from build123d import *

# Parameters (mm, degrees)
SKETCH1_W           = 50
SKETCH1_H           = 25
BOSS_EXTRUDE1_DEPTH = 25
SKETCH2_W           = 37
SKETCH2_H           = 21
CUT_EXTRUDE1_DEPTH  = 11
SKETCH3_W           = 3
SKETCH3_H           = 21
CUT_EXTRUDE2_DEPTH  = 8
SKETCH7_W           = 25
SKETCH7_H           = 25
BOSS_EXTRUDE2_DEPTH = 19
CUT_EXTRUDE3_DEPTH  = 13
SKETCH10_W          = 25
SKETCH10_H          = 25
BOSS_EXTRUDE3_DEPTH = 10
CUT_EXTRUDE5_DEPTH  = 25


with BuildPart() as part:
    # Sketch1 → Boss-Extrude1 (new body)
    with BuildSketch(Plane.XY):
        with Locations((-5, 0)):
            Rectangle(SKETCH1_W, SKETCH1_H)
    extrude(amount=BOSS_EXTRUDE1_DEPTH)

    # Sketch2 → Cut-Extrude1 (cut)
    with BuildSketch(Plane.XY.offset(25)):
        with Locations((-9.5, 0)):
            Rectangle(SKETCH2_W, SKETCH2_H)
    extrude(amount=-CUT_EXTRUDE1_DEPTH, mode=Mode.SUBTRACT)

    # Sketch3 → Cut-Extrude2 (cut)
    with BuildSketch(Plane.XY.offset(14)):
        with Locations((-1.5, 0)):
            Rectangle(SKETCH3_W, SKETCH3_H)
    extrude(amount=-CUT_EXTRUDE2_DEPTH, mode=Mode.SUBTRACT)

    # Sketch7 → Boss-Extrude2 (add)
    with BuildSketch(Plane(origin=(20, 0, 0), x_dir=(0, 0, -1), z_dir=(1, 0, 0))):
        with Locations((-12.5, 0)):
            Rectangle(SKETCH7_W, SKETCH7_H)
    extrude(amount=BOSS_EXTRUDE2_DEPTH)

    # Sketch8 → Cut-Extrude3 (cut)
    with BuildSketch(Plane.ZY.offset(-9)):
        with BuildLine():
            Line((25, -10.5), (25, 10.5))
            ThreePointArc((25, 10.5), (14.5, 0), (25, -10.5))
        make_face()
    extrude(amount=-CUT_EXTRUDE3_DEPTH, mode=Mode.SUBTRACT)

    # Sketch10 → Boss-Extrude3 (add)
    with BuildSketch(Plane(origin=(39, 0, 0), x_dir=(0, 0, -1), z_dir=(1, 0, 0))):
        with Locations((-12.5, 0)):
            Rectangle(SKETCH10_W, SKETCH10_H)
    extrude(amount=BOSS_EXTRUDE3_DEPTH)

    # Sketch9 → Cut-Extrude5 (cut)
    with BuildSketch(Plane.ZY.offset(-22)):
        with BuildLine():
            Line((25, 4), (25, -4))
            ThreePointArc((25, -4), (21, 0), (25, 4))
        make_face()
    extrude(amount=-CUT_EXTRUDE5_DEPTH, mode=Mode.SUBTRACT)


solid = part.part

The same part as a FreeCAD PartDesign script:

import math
import FreeCAD as App
import Part
import Sketcher

V = App.Vector
Q = App.Units.Quantity

doc = App.newDocument("Part")
body = doc.addObject("PartDesign::Body", "Body")

# Sketch on XY plane
sketch1 = body.newObject("Sketcher::SketchObject", "Sketch")
sketch1.AttachmentSupport = (doc.getObject("XY_Plane"), [""])
sketch1.MapMode = "FlatFace"
sketch1.addGeometry([
    Part.LineSegment(V(-30, 12, 0), V(-30, -12, 0)),
    Part.LineSegment(V(-30, -12, 0), V(20, -12, 0)),
    Part.LineSegment(V(20, -12, 0), V(20, 12, 0)),
    Part.LineSegment(V(20, 12, 0), V(-30, 12, 0)),
], False)
sketch1.addConstraint([
    Sketcher.Constraint("Coincident", 0, 2, 1, 1),
    Sketcher.Constraint("Coincident", 1, 2, 2, 1),
    Sketcher.Constraint("Coincident", 2, 2, 3, 1),
    Sketcher.Constraint("Coincident", 3, 2, 0, 1),
    Sketcher.Constraint("Vertical", 0),
    Sketcher.Constraint("Horizontal", 1),
    Sketcher.Constraint("Vertical", 2),
    Sketcher.Constraint("Horizontal", 3),
    Sketcher.Constraint("DistanceX", 1, 1, 1, 2, Q("50 mm")),
    Sketcher.Constraint("DistanceY", 0, 2, 0, 1, Q("25 mm")),
    Sketcher.Constraint("DistanceX", 0, 2, -1, 1, Q("30 mm")),
    Sketcher.Constraint("DistanceY", 0, 2, -1, 1, Q("12.5 mm")),
])
pad1 = body.newObject("PartDesign::Pad", "Pad")
pad1.Profile = sketch1
pad1.Length = 25

# Sketch on XY plane
sketch2 = body.newObject("Sketcher::SketchObject", "Sketch001")
sketch2.AttachmentSupport = (doc.getObject("XY_Plane"), [""])
sketch2.MapMode = "FlatFace"
sketch2.AttachmentOffset = App.Placement(V(0, 0, 25), App.Rotation())
sketch2.addGeometry([
    Part.LineSegment(V(-28, 10, 0), V(-28, -10, 0)),
    Part.LineSegment(V(-28, -10, 0), V(9, -10, 0)),
    Part.LineSegment(V(9, -10, 0), V(9, 10, 0)),
    Part.LineSegment(V(9, 10, 0), V(-28, 10, 0)),
], False)
sketch2.addConstraint([
    Sketcher.Constraint("Coincident", 0, 2, 1, 1),
    Sketcher.Constraint("Coincident", 1, 2, 2, 1),
    Sketcher.Constraint("Coincident", 2, 2, 3, 1),
    Sketcher.Constraint("Coincident", 3, 2, 0, 1),
    Sketcher.Constraint("Vertical", 0),
    Sketcher.Constraint("Horizontal", 1),
    Sketcher.Constraint("Vertical", 2),
    Sketcher.Constraint("Horizontal", 3),
    Sketcher.Constraint("DistanceX", 1, 1, 1, 2, Q("37 mm")),
    Sketcher.Constraint("DistanceY", 0, 2, 0, 1, Q("21 mm")),
    Sketcher.Constraint("DistanceX", 0, 2, -1, 1, Q("28 mm")),
    Sketcher.Constraint("DistanceY", 0, 2, -1, 1, Q("10.5 mm")),
])
pocket1 = body.newObject("PartDesign::Pocket", "Pocket")
pocket1.Profile = sketch2
pocket1.Length = 11

# Sketch on XY plane
sketch3 = body.newObject("Sketcher::SketchObject", "Sketch002")
sketch3.AttachmentSupport = (doc.getObject("XY_Plane"), [""])
sketch3.MapMode = "FlatFace"
sketch3.AttachmentOffset = App.Placement(V(0, 0, 14), App.Rotation())
sketch3.addGeometry([
    Part.LineSegment(V(-3, 10.5, 0), V(-3, -10.5, 0)),
    Part.LineSegment(V(-3, -10.5, 0), V(0, -10.5, 0)),
    Part.LineSegment(V(0, -10.5, 0), V(0, 10.5, 0)),
    Part.LineSegment(V(0, 10.5, 0), V(-3, 10.5, 0)),
], False)
sketch3.addConstraint([
    Sketcher.Constraint("Coincident", 0, 2, 1, 1),
    Sketcher.Constraint("Coincident", 1, 2, 2, 1),
    Sketcher.Constraint("Coincident", 2, 2, 3, 1),
    Sketcher.Constraint("Coincident", 3, 2, 0, 1),
    Sketcher.Constraint("Vertical", 0),
    Sketcher.Constraint("Horizontal", 1),
    Sketcher.Constraint("Vertical", 2),
    Sketcher.Constraint("Horizontal", 3),
    Sketcher.Constraint("Symmetric", 1, 2, 2, 2, -1, 1),
    Sketcher.Constraint("DistanceX", 1, 1, 1, 2, Q("3 mm")),
    Sketcher.Constraint("DistanceY", 0, 2, 0, 1, Q("21 mm")),
])
pocket2 = body.newObject("PartDesign::Pocket", "Pocket001")
pocket2.Profile = sketch3
pocket2.Length = 8

# Sketch on YZ plane
sketch4 = body.newObject("Sketcher::SketchObject", "Sketch003")
sketch4.AttachmentSupport = (doc.getObject("YZ_Plane"), [""])
sketch4.MapMode = "FlatFace"
sketch4.AttachmentOffset = App.Placement(V(0, 0, 20), App.Rotation())
sketch4.addGeometry([
    Part.LineSegment(V(12, 25, 0), V(-12, 25, 0)),
    Part.LineSegment(V(-12, 25, 0), V(-12, 0, 0)),
    Part.LineSegment(V(-12, 0, 0), V(12, 0, 0)),
    Part.LineSegment(V(12, 0, 0), V(12, 25, 0)),
], False)
sketch4.addConstraint([
    Sketcher.Constraint("Coincident", 0, 2, 1, 1),
    Sketcher.Constraint("Coincident", 1, 2, 2, 1),
    Sketcher.Constraint("Coincident", 2, 2, 3, 1),
    Sketcher.Constraint("Coincident", 3, 2, 0, 1),
    Sketcher.Constraint("Horizontal", 0),
    Sketcher.Constraint("Vertical", 1),
    Sketcher.Constraint("Horizontal", 2),
    Sketcher.Constraint("Vertical", 3),
    Sketcher.Constraint("Symmetric", 1, 2, 2, 2, -1, 1),
    Sketcher.Constraint("Equal", 2, 1),
    Sketcher.Constraint("DistanceX", 0, 2, 0, 1, Q("25 mm")),
])
pad2 = body.newObject("PartDesign::Pad", "Pad001")
pad2.Profile = sketch4
pad2.Length = 19

# Sketch on YZ plane
sketch5 = body.newObject("Sketcher::SketchObject", "Sketch004")
sketch5.AttachmentSupport = (doc.getObject("YZ_Plane"), [""])
sketch5.MapMode = "FlatFace"
sketch5.AttachmentOffset = App.Placement(V(0, 0, 9), App.Rotation())
sketch5.addGeometry([
    Part.LineSegment(V(-10, 25, 0), V(10, 25, 0)),
    Part.ArcOfCircle(Part.Circle(V(0, 25, 0), V(0, 0, 1), 10), math.radians(180), math.radians(360)),
], False)
sketch5.addConstraint([
    Sketcher.Constraint("Coincident", 0, 1, 1, 1),
    Sketcher.Constraint("Coincident", 1, 2, 0, 2),
    Sketcher.Constraint("Horizontal", 0),
    Sketcher.Constraint("PointOnObject", 1, 3, -2),
    Sketcher.Constraint("Horizontal", 1, 3, 0, 1),
    Sketcher.Constraint("Radius", 1, Q("10.5 mm")),
    Sketcher.Constraint("DistanceY", -1, 1, 1, 3, Q("25 mm")),
])
pocket3 = body.newObject("PartDesign::Pocket", "Pocket002")
pocket3.Profile = sketch5
pocket3.Length = 13
pocket3.Reversed = True

# Sketch on YZ plane
sketch6 = body.newObject("Sketcher::SketchObject", "Sketch005")
sketch6.AttachmentSupport = (doc.getObject("YZ_Plane"), [""])
sketch6.MapMode = "FlatFace"
sketch6.AttachmentOffset = App.Placement(V(0, 0, 39), App.Rotation())
sketch6.addGeometry([
    Part.LineSegment(V(12, 25, 0), V(-12, 25, 0)),
    Part.LineSegment(V(-12, 25, 0), V(-12, 0, 0)),
    Part.LineSegment(V(-12, 0, 0), V(12, 0, 0)),
    Part.LineSegment(V(12, 0, 0), V(12, 25, 0)),
], False)
sketch6.addConstraint([
    Sketcher.Constraint("Coincident", 0, 2, 1, 1),
    Sketcher.Constraint("Coincident", 1, 2, 2, 1),
    Sketcher.Constraint("Coincident", 2, 2, 3, 1),
    Sketcher.Constraint("Coincident", 3, 2, 0, 1),
    Sketcher.Constraint("Horizontal", 0),
    Sketcher.Constraint("Vertical", 1),
    Sketcher.Constraint("Horizontal", 2),
    Sketcher.Constraint("Vertical", 3),
    Sketcher.Constraint("Symmetric", 1, 2, 2, 2, -1, 1),
    Sketcher.Constraint("Equal", 2, 1),
    Sketcher.Constraint("DistanceX", 0, 2, 0, 1, Q("25 mm")),
])
pad3 = body.newObject("PartDesign::Pad", "Pad002")
pad3.Profile = sketch6
pad3.Length = 10

# Sketch on YZ plane
sketch7 = body.newObject("Sketcher::SketchObject", "Sketch006")
sketch7.AttachmentSupport = (doc.getObject("YZ_Plane"), [""])
sketch7.MapMode = "FlatFace"
sketch7.AttachmentOffset = App.Placement(V(0, 0, 22), App.Rotation())
sketch7.addGeometry([
    Part.LineSegment(V(-4, 25, 0), V(4, 25, 0)),
    Part.ArcOfCircle(Part.Circle(V(0, 25, 0), V(0, 0, 1), 4), math.radians(180), math.radians(360)),
], False)
sketch7.addConstraint([
    Sketcher.Constraint("Coincident", 0, 1, 1, 1),
    Sketcher.Constraint("Coincident", 1, 2, 0, 2),
    Sketcher.Constraint("Horizontal", 0),
    Sketcher.Constraint("PointOnObject", 1, 3, -2),
    Sketcher.Constraint("Horizontal", 1, 3, 0, 1),
    Sketcher.Constraint("Radius", 1, Q("4 mm")),
    Sketcher.Constraint("DistanceY", -1, 1, 1, 3, Q("25 mm")),
])
pocket4 = body.newObject("PartDesign::Pocket", "Pocket003")
pocket4.Profile = sketch7
pocket4.Length = 25
pocket4.Reversed = True

doc.recompute()
